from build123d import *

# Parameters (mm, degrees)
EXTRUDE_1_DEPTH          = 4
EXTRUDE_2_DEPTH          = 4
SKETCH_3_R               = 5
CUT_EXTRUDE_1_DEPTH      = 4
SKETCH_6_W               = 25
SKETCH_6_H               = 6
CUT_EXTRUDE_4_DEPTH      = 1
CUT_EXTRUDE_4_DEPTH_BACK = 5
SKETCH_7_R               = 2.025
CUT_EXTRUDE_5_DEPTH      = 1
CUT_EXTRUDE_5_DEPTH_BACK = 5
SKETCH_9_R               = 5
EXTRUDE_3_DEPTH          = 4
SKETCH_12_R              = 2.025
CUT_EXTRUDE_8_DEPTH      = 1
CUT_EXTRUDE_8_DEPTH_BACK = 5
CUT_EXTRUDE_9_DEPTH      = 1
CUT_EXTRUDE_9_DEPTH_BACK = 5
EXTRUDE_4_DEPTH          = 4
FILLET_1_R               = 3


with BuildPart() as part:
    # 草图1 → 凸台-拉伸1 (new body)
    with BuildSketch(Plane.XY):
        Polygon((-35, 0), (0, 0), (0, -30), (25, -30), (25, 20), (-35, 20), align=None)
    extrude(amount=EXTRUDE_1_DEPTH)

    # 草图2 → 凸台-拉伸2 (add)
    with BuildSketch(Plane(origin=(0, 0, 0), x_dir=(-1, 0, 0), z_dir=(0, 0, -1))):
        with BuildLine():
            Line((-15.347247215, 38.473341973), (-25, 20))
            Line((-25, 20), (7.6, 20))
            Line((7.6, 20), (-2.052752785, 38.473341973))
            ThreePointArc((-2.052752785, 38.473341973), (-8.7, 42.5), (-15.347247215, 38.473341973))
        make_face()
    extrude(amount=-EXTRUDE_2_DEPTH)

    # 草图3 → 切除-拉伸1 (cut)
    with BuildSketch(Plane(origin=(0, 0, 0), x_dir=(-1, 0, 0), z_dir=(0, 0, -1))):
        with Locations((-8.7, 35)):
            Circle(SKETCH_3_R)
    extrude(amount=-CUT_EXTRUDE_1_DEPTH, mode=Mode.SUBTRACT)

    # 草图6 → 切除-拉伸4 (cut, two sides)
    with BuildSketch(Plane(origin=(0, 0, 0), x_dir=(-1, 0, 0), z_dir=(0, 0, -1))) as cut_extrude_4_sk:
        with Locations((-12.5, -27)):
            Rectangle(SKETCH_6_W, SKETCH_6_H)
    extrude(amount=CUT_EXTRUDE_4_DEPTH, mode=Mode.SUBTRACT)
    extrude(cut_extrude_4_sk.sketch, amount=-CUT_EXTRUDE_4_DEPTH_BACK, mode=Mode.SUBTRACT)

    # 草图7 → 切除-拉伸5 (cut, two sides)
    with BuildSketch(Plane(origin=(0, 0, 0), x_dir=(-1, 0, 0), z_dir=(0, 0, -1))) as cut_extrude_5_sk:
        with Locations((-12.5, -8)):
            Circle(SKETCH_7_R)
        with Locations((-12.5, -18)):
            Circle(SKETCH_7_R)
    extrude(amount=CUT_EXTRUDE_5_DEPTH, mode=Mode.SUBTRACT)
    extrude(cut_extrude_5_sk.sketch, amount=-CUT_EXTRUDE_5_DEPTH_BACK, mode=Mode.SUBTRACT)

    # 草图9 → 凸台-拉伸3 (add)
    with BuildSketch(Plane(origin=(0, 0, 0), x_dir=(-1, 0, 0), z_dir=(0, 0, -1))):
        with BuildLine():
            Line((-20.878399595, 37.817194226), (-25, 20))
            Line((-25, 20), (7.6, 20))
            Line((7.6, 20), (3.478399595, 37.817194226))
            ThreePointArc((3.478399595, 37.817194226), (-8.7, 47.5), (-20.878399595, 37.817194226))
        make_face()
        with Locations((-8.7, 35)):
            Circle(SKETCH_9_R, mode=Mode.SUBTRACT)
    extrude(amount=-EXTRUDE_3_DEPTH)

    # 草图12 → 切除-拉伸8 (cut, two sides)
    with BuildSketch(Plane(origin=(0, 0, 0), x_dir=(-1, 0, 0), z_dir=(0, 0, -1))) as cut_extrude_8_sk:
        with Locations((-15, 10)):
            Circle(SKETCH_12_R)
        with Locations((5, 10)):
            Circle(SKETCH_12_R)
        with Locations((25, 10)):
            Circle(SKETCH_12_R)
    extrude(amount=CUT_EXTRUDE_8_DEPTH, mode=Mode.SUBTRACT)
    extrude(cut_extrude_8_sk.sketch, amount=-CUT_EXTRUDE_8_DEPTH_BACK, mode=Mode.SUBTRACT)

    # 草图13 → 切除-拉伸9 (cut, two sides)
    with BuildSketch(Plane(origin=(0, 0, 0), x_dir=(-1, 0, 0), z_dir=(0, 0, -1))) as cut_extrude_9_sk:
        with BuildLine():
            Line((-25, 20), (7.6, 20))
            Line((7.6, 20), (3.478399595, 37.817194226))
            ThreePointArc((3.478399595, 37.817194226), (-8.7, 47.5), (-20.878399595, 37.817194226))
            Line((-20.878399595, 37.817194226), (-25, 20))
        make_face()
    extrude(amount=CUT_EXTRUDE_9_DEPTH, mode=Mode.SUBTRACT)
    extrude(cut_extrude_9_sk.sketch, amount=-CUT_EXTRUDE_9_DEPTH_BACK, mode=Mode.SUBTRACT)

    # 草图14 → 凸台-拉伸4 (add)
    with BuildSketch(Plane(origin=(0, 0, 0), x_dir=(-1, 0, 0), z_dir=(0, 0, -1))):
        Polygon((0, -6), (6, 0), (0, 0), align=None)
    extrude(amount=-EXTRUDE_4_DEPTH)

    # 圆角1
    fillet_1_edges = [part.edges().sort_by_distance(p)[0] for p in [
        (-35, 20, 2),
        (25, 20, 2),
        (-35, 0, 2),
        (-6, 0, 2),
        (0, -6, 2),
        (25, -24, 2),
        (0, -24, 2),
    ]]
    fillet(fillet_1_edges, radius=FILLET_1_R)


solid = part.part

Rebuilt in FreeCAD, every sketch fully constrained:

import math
import FreeCAD as App
import Part
import Sketcher
Q = App.Units.Quantity


def edges_at(feature, points):
    """Names of the edges that pass closest to the given points."""
    edges = feature.Shape.Edges
    near = lambda p: min(range(len(edges)), key=lambda i: edges[i].distToShape(Part.Vertex(*p))[0])
    return sorted({f"Edge{near(p) + 1}" for p in points})


def add_polygon(sketch, points):
    """Adds a closed chain of lines whose ends are joined by coincident constraints."""
    first, n = sketch.GeometryCount, len(points)
    for a, b in zip(points, points[1:] + points[:1]):
        sketch.addGeometry(Part.LineSegment(App.Vector(*a, 0), App.Vector(*b, 0)), False)
    for i in range(n):
        sketch.addConstraint(Sketcher.Constraint("Coincident", first + i, 2, first + (i + 1) % n, 1))

doc = App.newDocument("Part")
body = doc.addObject("PartDesign::Body", "Body")

sketch1 = body.newObject("Sketcher::SketchObject", "Sketch")
sketch1.AttachmentSupport = (doc.getObject("XY_Plane"), [""])
sketch1.MapMode = "FlatFace"
add_polygon(sketch1, [(-35, 0), (0, 0), (0, -30), (25, -30), (25, 20), (-35, 20)])
sketch1.addConstraint(Sketcher.Constraint("Horizontal", 0))
sketch1.addConstraint(Sketcher.Constraint("Vertical", 1))
sketch1.addConstraint(Sketcher.Constraint("Horizontal", 2))
sketch1.addConstraint(Sketcher.Constraint("Vertical", 3))
sketch1.addConstraint(Sketcher.Constraint("Horizontal", 4))
sketch1.addConstraint(Sketcher.Constraint("Vertical", 5))
sketch1.addConstraint(Sketcher.Constraint("Coincident", 0, 2, -1, 1))
sketch1.addConstraint(Sketcher.Constraint("DistanceX", 0, 1, 0, 2, Q("35 mm")))
sketch1.addConstraint(Sketcher.Constraint("DistanceX", 2, 1, 2, 2, Q("25 mm")))
sketch1.addConstraint(Sketcher.Constraint("DistanceY", 1, 2, 1, 1, Q("30 mm")))
sketch1.addConstraint(Sketcher.Constraint("DistanceY", 3, 1, 3, 2, Q("50 mm")))
pad1 = body.newObject("PartDesign::Pad", "Pad")
pad1.Profile = sketch1
pad1.Length = 4

sketch2 = body.newObject("Sketcher::SketchObject", "Sketch001")
sketch2.AttachmentSupport = (doc.getObject("XY_Plane"), [""])
sketch2.MapMode = "FlatFace"
sketch2.addGeometry(Part.LineSegment(App.Vector(15.347247, 38.473342, 0), App.Vector(25, 20, 0)), False)
sketch2.addGeometry(Part.LineSegment(App.Vector(25, 20, 0), App.Vector(-7.6, 20, 0)), False)
sketch2.addGeometry(Part.LineSegment(App.Vector(-7.6, 20, 0), App.Vector(2.052753, 38.473342, 0)), False)
sketch2.addGeometry(Part.ArcOfCircle(Part.Circle(App.Vector(8.7, 35, 0), App.Vector(0, 0, 1), 7.5), math.radians(27.588119), math.radians(152.411881)), False)
sketch2.addConstraint(Sketcher.Constraint("Coincident", 0, 2, 1, 1))
sketch2.addConstraint(Sketcher.Constraint("Coincident", 1, 2, 2, 1))
sketch2.addConstraint(Sketcher.Constraint("Tangent", 2, 2, 3, 2))
sketch2.addConstraint(Sketcher.Constraint("Tangent", 3, 1, 0, 1))
sketch2.addConstraint(Sketcher.Constraint("Horizontal", 1))
sketch2.addConstraint(Sketcher.Constraint("Horizontal", 2, 2, 3, 1))
sketch2.addConstraint(Sketcher.Constraint("Radius", 3, Q("7.5 mm")))
sketch2.addConstraint(Sketcher.Constraint("DistanceX", 1, 2, 1, 1, Q("32.6 mm")))
sketch2.addConstraint(Sketcher.Constraint("DistanceY", -1, 1, 3, 3, Q("35 mm")))
sketch2.addConstraint(Sketcher.Constraint("DistanceX", -1, 1, 0, 2, Q("25 mm")))
sketch2.addConstraint(Sketcher.Constraint("DistanceY", -1, 1, 0, 2, Q("20 mm")))
pad2 = body.newObject("PartDesign::Pad", "Pad001")
pad2.Profile = sketch2
pad2.Length = 4

sketch3 = body.newObject("Sketcher::SketchObject", "Sketch002")
sketch3.AttachmentSupport = (doc.getObject("XY_Plane"), [""])
sketch3.MapMode = "FlatFace"
sketch3.addGeometry(Part.Circle(App.Vector(8.7, 35, 0), App.Vector(0, 0, 1), 5), False)
sketch3.addConstraint(Sketcher.Constraint("Diameter", 0, Q("10 mm")))
sketch3.addConstraint(Sketcher.Constraint("DistanceY", -1, 1, 0, 3, Q("35 mm")))
sketch3.addConstraint(Sketcher.Constraint("DistanceX", -1, 1, 0, 3, Q("8.7 mm")))
pocket1 = body.newObject("PartDesign::Pocket", "Pocket")
pocket1.Profile = sketch3
pocket1.Length = 4
pocket1.Reversed = True

sketch4 = body.newObject("Sketcher::SketchObject", "Sketch003")
sketch4.AttachmentSupport = (doc.getObject("XY_Plane"), [""])
sketch4.MapMode = "FlatFace"
add_polygon(sketch4, [(25, -24), (25, -30), (0, -30), (0, -24)])
sketch4.addConstraint(Sketcher.Constraint("Vertical", 0))
sketch4.addConstraint(Sketcher.Constraint("Horizontal", 1))
sketch4.addConstraint(Sketcher.Constraint("Vertical", 2))
sketch4.addConstraint(Sketcher.Constraint("Horizontal", 3))
sketch4.addConstraint(Sketcher.Constraint("PointOnObject", 1, 2, -2))
sketch4.addConstraint(Sketcher.Constraint("DistanceX", 1, 2, 1, 1, Q("25 mm")))
sketch4.addConstraint(Sketcher.Constraint("DistanceY", 0, 2, 0, 1, Q("6 mm")))
sketch4.addConstraint(Sketcher.Constraint("DistanceY", 0, 2, -1, 1, Q("30 mm")))
pocket2 = body.newObject("PartDesign::Pocket", "Pocket001")
pocket2.Profile = sketch4
pocket2.Type = "ThroughAll"
pocket2.Midplane = True

sketch5 = body.newObject("Sketcher::SketchObject", "Sketch004")
sketch5.AttachmentSupport = (doc.getObject("XY_Plane"), [""])
sketch5.MapMode = "FlatFace"
sketch5.addGeometry(Part.Circle(App.Vector(12.5, -8, 0), App.Vector(0, 0, 1), 2.025), False)
sketch5.addGeometry(Part.Circle(App.Vector(12.5, -18, 0), App.Vector(0, 0, 1), 2.025), False)
sketch5.addConstraint(Sketcher.Constraint("Equal", 0, 1))
sketch5.addConstraint(Sketcher.Constraint("Vertical", 0, 3, 1, 3))
sketch5.addConstraint(Sketcher.Constraint("Diameter", 0, Q("4.05 mm")))
sketch5.addConstraint(Sketcher.Constraint("DistanceY", 0, 3, -1, 1, Q("8 mm")))
sketch5.addConstraint(Sketcher.Constraint("DistanceY", 1, 3, -1, 1, Q("18 mm")))
sketch5.addConstraint(Sketcher.Constraint("DistanceX", -1, 1, 0, 3, Q("12.5 mm")))
pocket3 = body.newObject("PartDesign::Pocket", "Pocket002")
pocket3.Profile = sketch5
pocket3.Type = "ThroughAll"
pocket3.Midplane = True

sketch6 = body.newObject("Sketcher::SketchObject", "Sketch005")
sketch6.AttachmentSupport = (doc.getObject("XY_Plane"), [""])
sketch6.MapMode = "FlatFace"
sketch6.addGeometry(Part.LineSegment(App.Vector(20.8784, 37.817194, 0), App.Vector(25, 20, 0)), False)
sketch6.addGeometry(Part.LineSegment(App.Vector(25, 20, 0), App.Vector(-7.6, 20, 0)), False)
sketch6.addGeometry(Part.LineSegment(App.Vector(-7.6, 20, 0), App.Vector(-3.4784, 37.817194, 0)), False)
sketch6.addGeometry(Part.ArcOfCircle(Part.Circle(App.Vector(8.7, 35, 0), App.Vector(0, 0, 1), 12.5), math.radians(13.024962), math.radians(166.975038)), False)
sketch6.addGeometry(Part.Circle(App.Vector(8.7, 35, 0), App.Vector(0, 0, 1), 5), False)
sketch6.addConstraint(Sketcher.Constraint("Coincident", 0, 2, 1, 1))
sketch6.addConstraint(Sketcher.Constraint("Coincident", 1, 2, 2, 1))
sketch6.addConstraint(Sketcher.Constraint("Tangent", 2, 2, 3, 2))
sketch6.addConstraint(Sketcher.Constraint("Tangent", 3, 1, 0, 1))
sketch6.addConstraint(Sketcher.Constraint("Horizontal", 1))
sketch6.addConstraint(Sketcher.Constraint("Coincident", 4, 3, 3, 3))
sketch6.addConstraint(Sketcher.Constraint("Horizontal", 2, 2, 3, 1))
sketch6.addConstraint(Sketcher.Constraint("Diameter", 4, Q("10 mm")))
sketch6.addConstraint(Sketcher.Constraint("Radius", 3, Q("12.5 mm")))
sketch6.addConstraint(Sketcher.Constraint("DistanceX", 1, 2, 1, 1, Q("32.6 mm")))
sketch6.addConstraint(Sketcher.Constraint("DistanceY", -1, 1, 3, 3, Q("35 mm")))
sketch6.addConstraint(Sketcher.Constraint("DistanceX", -1, 1, 0, 2, Q("25 mm")))
sketch6.addConstraint(Sketcher.Constraint("DistanceY", -1, 1, 0, 2, Q("20 mm")))
pad3 = body.newObject("PartDesign::Pad", "Pad002")
pad3.Profile = sketch6
pad3.Length = 4

sketch7 = body.newObject("Sketcher::SketchObject", "Sketch006")
sketch7.AttachmentSupport = (doc.getObject("XY_Plane"), [""])
sketch7.MapMode = "FlatFace"
sketch7.addGeometry(Part.Circle(App.Vector(15, 10, 0), App.Vector(0, 0, 1), 2.025), False)
sketch7.addGeometry(Part.Circle(App.Vector(-5, 10, 0), App.Vector(0, 0, 1), 2.025), False)
sketch7.addGeometry(Part.Circle(App.Vector(-25, 10, 0), App.Vector(0, 0, 1), 2.025), False)
sketch7.addConstraint(Sketcher.Constraint("Equal", 0, 1))
sketch7.addConstraint(Sketcher.Constraint("Equal", 1, 2))
sketch7.addConstraint(Sketcher.Constraint("Horizontal", 0, 3, 1, 3))
sketch7.addConstraint(Sketcher.Constraint("Horizontal", 1, 3, 2, 3))
sketch7.addConstraint(Sketcher.Constraint("Diameter", 0, Q("4.05 mm")))
sketch7.addConstraint(Sketcher.Constraint("DistanceX", -1, 1, 0, 3, Q("15 mm")))
sketch7.addConstraint(Sketcher.Constraint("DistanceY", -1, 1, 0, 3, Q("10 mm")))
sketch7.addConstraint(Sketcher.Constraint("DistanceX", 1, 3, -1, 1, Q("5 mm")))
sketch7.addConstraint(Sketcher.Constraint("DistanceX", 2, 3, -1, 1, Q("25 mm")))
pocket4 = body.newObject("PartDesign::Pocket", "Pocket003")
pocket4.Profile = sketch7
pocket4.Type = "ThroughAll"
pocket4.Midplane = True

sketch8 = body.newObject("Sketcher::SketchObject", "Sketch007")
sketch8.AttachmentSupport = (doc.getObject("XY_Plane"), [""])
sketch8.MapMode = "FlatFace"
sketch8.addGeometry(Part.LineSegment(App.Vector(25, 20, 0), App.Vector(-7.6, 20, 0)), False)
sketch8.addGeometry(Part.LineSegment(App.Vector(-7.6, 20, 0), App.Vector(-3.4784, 37.817194, 0)), False)
sketch8.addGeometry(Part.ArcOfCircle(Part.Circle(App.Vector(8.7, 35, 0), App.Vector(0, 0, 1), 12.5), math.radians(13.024962), math.radians(166.975038)), False)
sketch8.addGeometry(Part.LineSegment(App.Vector(20.8784, 37.817194, 0), App.Vector(25, 20, 0)), False)
sketch8.addConstraint(Sketcher.Constraint("Coincident", 0, 2, 1, 1))
sketch8.addConstraint(Sketcher.Constraint("Tangent", 1, 2, 2, 2))
sketch8.addConstraint(Sketcher.Constraint("Tangent", 2, 1, 3, 1))
sketch8.addConstraint(Sketcher.Constraint("Coincident", 3, 2, 0, 1))
sketch8.addConstraint(Sketcher.Constraint("Horizontal", 0))
sketch8.addConstraint(Sketcher.Constraint("Horizontal", 1, 2, 2, 1))
sketch8.addConstraint(Sketcher.Constraint("Radius", 2, Q("12.5 mm")))
sketch8.addConstraint(Sketcher.Constraint("DistanceX", 0, 2, 0, 1, Q("32.6 mm")))
sketch8.addConstraint(Sketcher.Constraint("DistanceY", -1, 1, 2, 3, Q("35 mm")))
sketch8.addConstraint(Sketcher.Constraint("DistanceY", -1, 1, 0, 2, Q("20 mm")))
sketch8.addConstraint(Sketcher.Constraint("DistanceX", -1, 1, 3, 2, Q("25 mm")))
pocket5 = body.newObject("PartDesign::Pocket", "Pocket004")
pocket5.Profile = sketch8
pocket5.Type = "ThroughAll"
pocket5.Midplane = True

sketch9 = body.newObject("Sketcher::SketchObject", "Sketch008")
sketch9.AttachmentSupport = (doc.getObject("XY_Plane"), [""])
sketch9.MapMode = "FlatFace"
add_polygon(sketch9, [(0, -6), (-6, 0), (0, 0)])
sketch9.addConstraint(Sketcher.Constraint("Horizontal", 1))
sketch9.addConstraint(Sketcher.Constraint("Vertical", 2))
sketch9.addConstraint(Sketcher.Constraint("Coincident", 1, 2, -1, 1))
sketch9.addConstraint(Sketcher.Constraint("Equal", 1, 2))
sketch9.addConstraint(Sketcher.Constraint("DistanceX", 1, 1, 1, 2, Q("6 mm")))
pad4 = body.newObject("PartDesign::Pad", "Pad003")
pad4.Profile = sketch9
pad4.Length = 4
doc.recompute()

fillet = body.newObject("PartDesign::Fillet", "Fillet")
fillet.Base = (pad4, edges_at(pad4, [
    (-35, 20, 2),
    (25, 20, 2),
    (-35, 0, 2),
    (-6, 0, 2),
    (0, -6, 2),
    (25, -24, 2),
    (0, -24, 2),
]))
fillet.Radius = 3

doc.recompute()
